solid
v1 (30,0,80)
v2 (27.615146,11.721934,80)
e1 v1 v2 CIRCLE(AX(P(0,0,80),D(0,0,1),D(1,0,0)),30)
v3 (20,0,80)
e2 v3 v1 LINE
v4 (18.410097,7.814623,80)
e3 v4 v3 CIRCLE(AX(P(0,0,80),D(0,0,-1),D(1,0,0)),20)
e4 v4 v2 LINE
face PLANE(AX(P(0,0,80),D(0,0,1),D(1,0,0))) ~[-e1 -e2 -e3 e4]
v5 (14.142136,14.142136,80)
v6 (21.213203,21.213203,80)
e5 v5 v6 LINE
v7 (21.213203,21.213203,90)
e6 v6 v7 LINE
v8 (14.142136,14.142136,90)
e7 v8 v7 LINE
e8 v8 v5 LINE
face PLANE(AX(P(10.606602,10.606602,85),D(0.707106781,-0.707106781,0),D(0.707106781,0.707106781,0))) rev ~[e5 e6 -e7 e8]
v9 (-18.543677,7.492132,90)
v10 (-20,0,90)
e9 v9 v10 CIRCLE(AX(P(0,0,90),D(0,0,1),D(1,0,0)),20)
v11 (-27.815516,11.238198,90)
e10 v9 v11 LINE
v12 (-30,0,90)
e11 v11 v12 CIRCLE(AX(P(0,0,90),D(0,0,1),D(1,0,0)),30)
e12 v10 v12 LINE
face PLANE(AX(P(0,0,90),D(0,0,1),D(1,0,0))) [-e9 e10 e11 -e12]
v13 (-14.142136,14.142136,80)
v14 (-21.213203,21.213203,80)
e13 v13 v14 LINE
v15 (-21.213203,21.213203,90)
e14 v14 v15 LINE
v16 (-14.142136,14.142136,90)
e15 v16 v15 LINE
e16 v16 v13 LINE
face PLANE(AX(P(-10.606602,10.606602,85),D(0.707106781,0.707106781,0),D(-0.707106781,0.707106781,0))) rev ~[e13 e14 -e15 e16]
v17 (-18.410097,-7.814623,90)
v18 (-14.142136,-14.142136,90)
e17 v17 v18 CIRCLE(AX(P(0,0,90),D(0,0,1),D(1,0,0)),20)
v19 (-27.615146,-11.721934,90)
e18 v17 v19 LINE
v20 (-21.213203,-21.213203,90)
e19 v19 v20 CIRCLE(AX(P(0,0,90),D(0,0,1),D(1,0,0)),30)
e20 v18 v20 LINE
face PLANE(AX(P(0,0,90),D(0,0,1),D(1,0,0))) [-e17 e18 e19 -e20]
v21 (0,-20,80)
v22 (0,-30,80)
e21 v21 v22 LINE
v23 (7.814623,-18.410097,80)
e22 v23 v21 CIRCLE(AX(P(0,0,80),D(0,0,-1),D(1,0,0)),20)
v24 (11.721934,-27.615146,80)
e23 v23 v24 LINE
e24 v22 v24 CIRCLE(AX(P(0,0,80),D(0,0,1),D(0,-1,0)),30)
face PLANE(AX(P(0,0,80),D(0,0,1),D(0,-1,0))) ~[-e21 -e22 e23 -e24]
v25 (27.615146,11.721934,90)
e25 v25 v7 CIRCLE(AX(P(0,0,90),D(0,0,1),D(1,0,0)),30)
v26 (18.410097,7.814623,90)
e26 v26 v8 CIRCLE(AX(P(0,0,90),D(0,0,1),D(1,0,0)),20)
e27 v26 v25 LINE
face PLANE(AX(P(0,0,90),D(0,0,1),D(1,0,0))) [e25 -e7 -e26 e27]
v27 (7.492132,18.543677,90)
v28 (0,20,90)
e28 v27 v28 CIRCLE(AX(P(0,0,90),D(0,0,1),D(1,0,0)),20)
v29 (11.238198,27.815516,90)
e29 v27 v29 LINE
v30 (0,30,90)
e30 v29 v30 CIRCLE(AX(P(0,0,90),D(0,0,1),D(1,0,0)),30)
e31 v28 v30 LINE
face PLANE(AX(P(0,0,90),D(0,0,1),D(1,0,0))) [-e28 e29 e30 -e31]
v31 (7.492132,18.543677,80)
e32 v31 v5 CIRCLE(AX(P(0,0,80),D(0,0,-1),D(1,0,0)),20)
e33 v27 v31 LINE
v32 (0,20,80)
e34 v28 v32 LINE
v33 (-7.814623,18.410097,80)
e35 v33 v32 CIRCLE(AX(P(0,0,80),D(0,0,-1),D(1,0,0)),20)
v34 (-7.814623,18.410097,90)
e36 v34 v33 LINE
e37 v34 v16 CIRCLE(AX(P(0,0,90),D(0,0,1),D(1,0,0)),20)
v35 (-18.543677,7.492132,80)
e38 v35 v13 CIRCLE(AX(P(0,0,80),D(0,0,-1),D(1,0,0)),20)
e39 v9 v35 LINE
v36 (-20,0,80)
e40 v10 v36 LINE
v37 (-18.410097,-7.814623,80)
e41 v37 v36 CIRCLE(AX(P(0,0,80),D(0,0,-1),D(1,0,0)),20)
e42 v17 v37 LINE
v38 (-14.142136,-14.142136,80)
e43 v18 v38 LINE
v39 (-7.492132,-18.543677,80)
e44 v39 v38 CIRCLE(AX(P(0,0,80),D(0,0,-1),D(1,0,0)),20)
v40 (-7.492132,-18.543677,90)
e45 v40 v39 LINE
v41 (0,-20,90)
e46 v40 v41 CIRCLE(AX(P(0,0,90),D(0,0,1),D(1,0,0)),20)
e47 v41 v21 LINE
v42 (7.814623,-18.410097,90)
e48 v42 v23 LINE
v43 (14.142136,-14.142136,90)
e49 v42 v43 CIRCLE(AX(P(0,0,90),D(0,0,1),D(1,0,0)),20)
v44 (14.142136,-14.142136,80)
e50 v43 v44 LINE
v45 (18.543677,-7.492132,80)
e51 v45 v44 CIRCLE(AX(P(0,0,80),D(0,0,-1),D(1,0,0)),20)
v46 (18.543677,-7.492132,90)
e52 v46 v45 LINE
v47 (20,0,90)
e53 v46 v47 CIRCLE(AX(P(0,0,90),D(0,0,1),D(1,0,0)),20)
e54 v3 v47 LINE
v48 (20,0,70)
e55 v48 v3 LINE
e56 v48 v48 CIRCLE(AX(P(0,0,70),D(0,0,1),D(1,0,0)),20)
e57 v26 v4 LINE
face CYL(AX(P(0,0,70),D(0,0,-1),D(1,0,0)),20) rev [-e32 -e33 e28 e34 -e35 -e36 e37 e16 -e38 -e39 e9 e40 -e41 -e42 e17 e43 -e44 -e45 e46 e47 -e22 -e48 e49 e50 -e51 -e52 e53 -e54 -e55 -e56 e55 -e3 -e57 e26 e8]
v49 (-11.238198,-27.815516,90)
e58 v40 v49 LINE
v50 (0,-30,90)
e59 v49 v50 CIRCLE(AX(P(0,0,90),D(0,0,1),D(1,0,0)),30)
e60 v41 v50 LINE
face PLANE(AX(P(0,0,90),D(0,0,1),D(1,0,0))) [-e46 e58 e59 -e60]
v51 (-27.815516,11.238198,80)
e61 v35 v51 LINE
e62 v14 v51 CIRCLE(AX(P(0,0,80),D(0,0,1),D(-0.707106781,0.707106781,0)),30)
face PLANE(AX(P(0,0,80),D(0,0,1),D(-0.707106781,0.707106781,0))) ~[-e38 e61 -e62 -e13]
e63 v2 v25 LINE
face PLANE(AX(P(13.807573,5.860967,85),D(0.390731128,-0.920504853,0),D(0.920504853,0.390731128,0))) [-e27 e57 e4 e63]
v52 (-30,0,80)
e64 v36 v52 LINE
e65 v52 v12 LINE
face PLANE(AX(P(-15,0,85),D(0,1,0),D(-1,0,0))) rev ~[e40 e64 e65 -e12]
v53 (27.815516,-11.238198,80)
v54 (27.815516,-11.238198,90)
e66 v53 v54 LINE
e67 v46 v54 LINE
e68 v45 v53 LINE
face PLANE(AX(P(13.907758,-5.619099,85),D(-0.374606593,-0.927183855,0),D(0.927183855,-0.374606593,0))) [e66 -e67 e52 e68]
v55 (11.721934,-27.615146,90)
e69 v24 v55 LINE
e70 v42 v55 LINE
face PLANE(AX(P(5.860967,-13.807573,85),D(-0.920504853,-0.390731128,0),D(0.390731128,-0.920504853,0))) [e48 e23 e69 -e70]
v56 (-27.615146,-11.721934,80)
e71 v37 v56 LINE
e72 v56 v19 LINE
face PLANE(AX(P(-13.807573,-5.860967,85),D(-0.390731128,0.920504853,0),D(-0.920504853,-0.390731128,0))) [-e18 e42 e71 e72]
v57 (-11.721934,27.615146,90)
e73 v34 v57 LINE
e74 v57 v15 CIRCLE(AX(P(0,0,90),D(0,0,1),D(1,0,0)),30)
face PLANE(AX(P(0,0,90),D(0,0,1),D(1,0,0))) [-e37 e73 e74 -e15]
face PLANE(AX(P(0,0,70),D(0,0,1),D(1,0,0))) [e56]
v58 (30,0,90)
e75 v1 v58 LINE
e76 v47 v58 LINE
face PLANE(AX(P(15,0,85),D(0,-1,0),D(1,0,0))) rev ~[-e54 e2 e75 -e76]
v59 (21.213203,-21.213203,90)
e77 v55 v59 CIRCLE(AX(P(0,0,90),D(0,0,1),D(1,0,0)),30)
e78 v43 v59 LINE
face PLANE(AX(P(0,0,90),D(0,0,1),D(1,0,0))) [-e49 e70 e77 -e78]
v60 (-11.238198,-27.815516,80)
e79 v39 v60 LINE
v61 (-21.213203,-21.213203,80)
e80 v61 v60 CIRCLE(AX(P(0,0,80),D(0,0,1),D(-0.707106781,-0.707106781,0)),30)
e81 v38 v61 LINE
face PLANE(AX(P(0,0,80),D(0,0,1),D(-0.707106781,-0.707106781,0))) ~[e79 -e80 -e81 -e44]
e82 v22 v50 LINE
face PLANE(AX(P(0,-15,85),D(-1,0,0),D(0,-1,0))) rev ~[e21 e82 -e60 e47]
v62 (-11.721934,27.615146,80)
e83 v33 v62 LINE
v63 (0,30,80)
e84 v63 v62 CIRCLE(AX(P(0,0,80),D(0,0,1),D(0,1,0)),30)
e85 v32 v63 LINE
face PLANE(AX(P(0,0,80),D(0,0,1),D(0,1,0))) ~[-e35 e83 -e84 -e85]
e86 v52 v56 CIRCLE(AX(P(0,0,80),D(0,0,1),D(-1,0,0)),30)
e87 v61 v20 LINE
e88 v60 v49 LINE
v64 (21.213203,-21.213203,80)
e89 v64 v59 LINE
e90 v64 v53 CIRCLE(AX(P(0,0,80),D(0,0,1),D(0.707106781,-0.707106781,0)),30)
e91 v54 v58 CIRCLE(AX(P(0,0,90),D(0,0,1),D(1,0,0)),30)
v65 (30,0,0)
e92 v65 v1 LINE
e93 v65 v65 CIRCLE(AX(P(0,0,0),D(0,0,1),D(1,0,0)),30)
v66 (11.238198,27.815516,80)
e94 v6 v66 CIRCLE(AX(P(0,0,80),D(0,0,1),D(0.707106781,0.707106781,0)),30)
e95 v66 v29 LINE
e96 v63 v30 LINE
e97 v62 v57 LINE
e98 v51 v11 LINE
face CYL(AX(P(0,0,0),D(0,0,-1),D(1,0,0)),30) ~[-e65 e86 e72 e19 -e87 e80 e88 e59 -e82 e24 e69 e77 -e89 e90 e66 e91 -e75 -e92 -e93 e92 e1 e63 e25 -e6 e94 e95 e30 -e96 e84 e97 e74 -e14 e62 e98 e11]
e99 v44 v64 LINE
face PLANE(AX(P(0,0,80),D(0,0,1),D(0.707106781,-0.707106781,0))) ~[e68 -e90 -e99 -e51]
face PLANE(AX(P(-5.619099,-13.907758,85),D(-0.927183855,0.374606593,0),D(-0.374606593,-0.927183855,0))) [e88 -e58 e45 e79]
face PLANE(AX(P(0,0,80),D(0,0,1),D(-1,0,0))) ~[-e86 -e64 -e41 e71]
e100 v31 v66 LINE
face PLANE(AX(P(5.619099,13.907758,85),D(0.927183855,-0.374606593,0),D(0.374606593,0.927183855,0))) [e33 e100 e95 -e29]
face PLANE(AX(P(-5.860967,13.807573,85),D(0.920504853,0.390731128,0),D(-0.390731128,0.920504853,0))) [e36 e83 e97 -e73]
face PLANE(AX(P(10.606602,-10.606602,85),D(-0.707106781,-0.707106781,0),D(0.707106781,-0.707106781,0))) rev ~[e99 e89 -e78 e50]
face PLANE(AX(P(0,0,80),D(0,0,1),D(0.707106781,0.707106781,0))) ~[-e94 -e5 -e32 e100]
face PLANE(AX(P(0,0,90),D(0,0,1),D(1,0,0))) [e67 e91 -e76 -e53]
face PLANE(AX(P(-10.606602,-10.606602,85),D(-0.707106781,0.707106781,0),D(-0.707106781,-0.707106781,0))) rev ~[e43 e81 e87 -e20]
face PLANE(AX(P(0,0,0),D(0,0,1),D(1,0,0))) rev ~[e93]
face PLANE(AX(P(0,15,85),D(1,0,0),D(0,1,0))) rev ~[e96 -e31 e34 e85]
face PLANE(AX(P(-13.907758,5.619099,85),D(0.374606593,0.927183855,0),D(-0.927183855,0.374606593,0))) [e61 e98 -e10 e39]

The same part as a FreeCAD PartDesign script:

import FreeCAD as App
import Part
import Sketcher
from FreeCAD import Vector

doc = App.newDocument("Part")
body = doc.addObject("PartDesign::Body", "Body")

# Sketch on XY plane
sketch1 = body.newObject("Sketcher::SketchObject", "Sketch")
sketch1.AttachmentSupport = (doc.getObject("XY_Plane"), [""])
sketch1.MapMode = "FlatFace"
sketch1.AttachmentOffset = App.Placement(Vector(0, 0, 70), App.Rotation())
sketch1.addGeometry(Part.Circle(Vector(0, 0, 0), Vector(0, 0, 1), 20), False)
sketch1.addConstraint([
    Sketcher.Constraint("Coincident", 0, 3, -1, 1),
    Sketcher.Constraint("Diameter", 0, 40.0),
])
pad1 = body.newObject("PartDesign::Pad", "Pad")
pad1.Profile = sketch1
pad1.Length = 20
body2 = doc.addObject("PartDesign::Body", "Body001")

# Sketch on XZ plane
sketch2 = body2.newObject("Sketcher::SketchObject", "Sketch001")
sketch2.AttachmentSupport = (doc.getObject("XZ_Plane001"), [""])
sketch2.MapMode = "FlatFace"
sketch2.addGeometry([
    Part.LineSegment(Vector(0, 90, 0), Vector(0, 80, 0)),
    Part.LineSegment(Vector(0, 80, 0), Vector(30, 80, 0)),
    Part.LineSegment(Vector(30, 80, 0), Vector(30, 90, 0)),
    Part.LineSegment(Vector(30, 90, 0), Vector(0, 90, 0)),
], False)
sketch2.addConstraint([
    Sketcher.Constraint("Coincident", 0, 2, 1, 1),
    Sketcher.Constraint("Coincident", 1, 2, 2, 1),
    Sketcher.Constraint("Coincident", 2, 2, 3, 1),
    Sketcher.Constraint("Coincident", 3, 2, 0, 1),
    Sketcher.Constraint("Vertical", 0),
    Sketcher.Constraint("Horizontal", 1),
    Sketcher.Constraint("Vertical", 2),
    Sketcher.Constraint("Horizontal", 3),
    Sketcher.Constraint("PointOnObject", 0, 2, -2),
    Sketcher.Constraint("DistanceX", 1, 1, 1, 2, 30.0),
    Sketcher.Constraint("DistanceY", 0, 2, 0, 1, 10.0),
    Sketcher.Constraint("DistanceY", -1, 1, 0, 2, 80.0),
])
revolution = body2.newObject("PartDesign::Revolution", "Revolution")
revolution.Profile = sketch2
revolution.ReferenceAxis = (sketch2, ["V_Axis"])
revolution.Angle = 23
body3 = doc.addObject("PartDesign::Body", "Body002")
body3.AllowCompound = True
doc.recompute()

body3.BaseFeature = body2
doc.recompute()

body4 = doc.addObject("PartDesign::Body", "Body003")
body4.BaseFeature = body2
body4.Placement = App.Placement(Vector(0, 0, 0), App.Rotation(Vector(0, 0, 1), 45))
boolean = body3.newObject("PartDesign::Boolean", "Boolean")
boolean.Type = "Fuse"
boolean.addObjects([body4])
doc.recompute()

body5 = doc.addObject("PartDesign::Body", "Body004")
body5.BaseFeature = body2
body5.Placement = App.Placement(Vector(0, 0, 0), App.Rotation(Vector(0, 0, 1), 90))
boolean2 = body3.newObject("PartDesign::Boolean", "Boolean001")
boolean2.Type = "Fuse"
boolean2.addObjects([body5])
doc.recompute()

body6 = doc.addObject("PartDesign::Body", "Body005")
body6.BaseFeature = body2
body6.Placement = App.Placement(Vector(0, 0, 0), App.Rotation(Vector(0, 0, 1), 135))
boolean3 = body3.newObject("PartDesign::Boolean", "Boolean002")
boolean3.Type = "Fuse"
boolean3.addObjects([body6])
doc.recompute()

body7 = doc.addObject("PartDesign::Body", "Body006")
body7.BaseFeature = body2
body7.Placement = App.Placement(Vector(0, 0, 0), App.Rotation(Vector(0, 0, 1), 180))
boolean4 = body3.newObject("PartDesign::Boolean", "Boolean003")
boolean4.Type = "Fuse"
boolean4.addObjects([body7])
doc.recompute()

body8 = doc.addObject("PartDesign::Body", "Body007")
body8.BaseFeature = body2
body8.Placement = App.Placement(Vector(0, 0, 0), App.Rotation(Vector(0, 0, 1), 225))
boolean5 = body3.newObject("PartDesign::Boolean", "Boolean004")
boolean5.Type = "Fuse"
boolean5.addObjects([body8])
doc.recompute()

body9 = doc.addObject("PartDesign::Body", "Body008")
body9.BaseFeature = body2
body9.Placement = App.Placement(Vector(0, 0, 0), App.Rotation(Vector(0, 0, 1), 270))
boolean6 = body3.newObject("PartDesign::Boolean", "Boolean005")
boolean6.Type = "Fuse"
boolean6.addObjects([body9])
doc.recompute()

body2.Placement = App.Placement(Vector(0, 0, 0), App.Rotation(Vector(0, 0, 1), 315))
boolean7 = body3.newObject("PartDesign::Boolean", "Boolean006")
boolean7.Type = "Fuse"
boolean7.addObjects([body2])
body10 = doc.addObject("PartDesign::Body", "Body009")

# Sketch on XY plane
sketch3 = body10.newObject("Sketcher::SketchObject", "Sketch002")
sketch3.AttachmentSupport = (doc.getObject("XY_Plane009"), [""])
sketch3.MapMode = "FlatFace"
sketch3.addGeometry(Part.Circle(Vector(0, 0, 0), Vector(0, 0, 1), 30), False)
sketch3.addConstraint([
    Sketcher.Constraint("Coincident", 0, 3, -1, 1),
    Sketcher.Constraint("Diameter", 0, 60.0),
])
pad2 = body10.newObject("PartDesign::Pad", "Pad001")
pad2.Profile = sketch3
pad2.Length = 90
doc.recompute()

boolean8 = body10.newObject("PartDesign::Boolean", "Boolean007")
boolean8.Type = "Cut"
boolean8.addObjects([body3])
doc.recompute()

boolean9 = body10.newObject("PartDesign::Boolean", "Boolean008")
boolean9.Type = "Cut"
boolean9.addObjects([body])

doc.recompute()
